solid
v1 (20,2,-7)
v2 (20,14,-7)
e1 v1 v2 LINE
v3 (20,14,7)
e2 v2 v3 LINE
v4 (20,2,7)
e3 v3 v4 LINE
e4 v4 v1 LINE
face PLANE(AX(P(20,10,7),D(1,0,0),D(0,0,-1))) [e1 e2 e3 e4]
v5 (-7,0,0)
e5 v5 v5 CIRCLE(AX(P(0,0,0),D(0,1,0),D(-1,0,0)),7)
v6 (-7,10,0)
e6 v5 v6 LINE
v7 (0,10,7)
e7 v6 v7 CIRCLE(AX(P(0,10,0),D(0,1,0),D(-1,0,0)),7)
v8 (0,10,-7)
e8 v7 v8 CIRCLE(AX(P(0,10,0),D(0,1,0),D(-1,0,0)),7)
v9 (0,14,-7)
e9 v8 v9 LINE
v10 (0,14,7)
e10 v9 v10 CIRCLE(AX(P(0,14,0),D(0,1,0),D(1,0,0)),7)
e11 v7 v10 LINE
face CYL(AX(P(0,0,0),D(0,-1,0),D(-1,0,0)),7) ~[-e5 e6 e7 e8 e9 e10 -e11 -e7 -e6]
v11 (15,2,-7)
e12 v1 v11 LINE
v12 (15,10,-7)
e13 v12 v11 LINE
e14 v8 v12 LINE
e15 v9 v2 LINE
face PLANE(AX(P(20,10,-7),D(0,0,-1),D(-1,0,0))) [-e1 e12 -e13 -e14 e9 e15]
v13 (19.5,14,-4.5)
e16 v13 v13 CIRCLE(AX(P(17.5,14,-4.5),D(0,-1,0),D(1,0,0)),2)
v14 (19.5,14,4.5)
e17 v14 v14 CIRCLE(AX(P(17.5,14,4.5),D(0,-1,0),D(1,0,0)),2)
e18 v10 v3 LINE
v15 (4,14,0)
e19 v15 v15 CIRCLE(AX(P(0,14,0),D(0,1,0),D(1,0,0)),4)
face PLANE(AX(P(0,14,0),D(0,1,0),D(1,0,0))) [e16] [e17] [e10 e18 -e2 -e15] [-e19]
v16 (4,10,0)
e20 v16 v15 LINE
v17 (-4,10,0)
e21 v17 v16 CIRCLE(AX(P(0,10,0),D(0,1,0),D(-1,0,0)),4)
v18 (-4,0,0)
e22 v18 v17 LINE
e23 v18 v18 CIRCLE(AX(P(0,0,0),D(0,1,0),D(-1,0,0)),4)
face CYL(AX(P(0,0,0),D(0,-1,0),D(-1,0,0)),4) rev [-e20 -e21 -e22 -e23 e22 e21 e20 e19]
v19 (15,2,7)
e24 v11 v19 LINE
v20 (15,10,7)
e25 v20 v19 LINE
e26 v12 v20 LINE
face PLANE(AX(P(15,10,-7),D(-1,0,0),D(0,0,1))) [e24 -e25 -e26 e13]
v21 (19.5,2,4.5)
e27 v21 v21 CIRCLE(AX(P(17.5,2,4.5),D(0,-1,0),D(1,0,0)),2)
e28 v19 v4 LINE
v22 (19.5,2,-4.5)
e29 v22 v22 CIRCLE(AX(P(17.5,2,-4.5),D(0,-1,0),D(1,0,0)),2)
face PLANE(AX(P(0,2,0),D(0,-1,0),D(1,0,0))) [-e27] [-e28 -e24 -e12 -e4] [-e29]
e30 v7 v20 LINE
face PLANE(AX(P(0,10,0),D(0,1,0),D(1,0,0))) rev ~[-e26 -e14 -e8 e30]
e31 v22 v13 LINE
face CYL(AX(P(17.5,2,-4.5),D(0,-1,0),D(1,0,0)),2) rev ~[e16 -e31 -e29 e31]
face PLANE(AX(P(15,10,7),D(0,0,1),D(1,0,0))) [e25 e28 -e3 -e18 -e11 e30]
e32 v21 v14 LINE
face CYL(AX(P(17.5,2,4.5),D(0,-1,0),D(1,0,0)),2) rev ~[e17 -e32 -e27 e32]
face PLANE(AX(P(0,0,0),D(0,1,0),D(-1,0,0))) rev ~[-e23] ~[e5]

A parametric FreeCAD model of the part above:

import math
import FreeCAD as App
import Part
import Sketcher
Q = App.Units.Quantity


def add_polygon(sketch, points):
    """Adds a closed chain of lines whose ends are joined by coincident constraints."""
    first, n = sketch.GeometryCount, len(points)
    for a, b in zip(points, points[1:] + points[:1]):
        sketch.addGeometry(Part.LineSegment(App.Vector(*a, 0), App.Vector(*b, 0)), False)
    for i in range(n):
        sketch.addConstraint(Sketcher.Constraint("Coincident", first + i, 2, first + (i + 1) % n, 1))

doc = App.newDocument("Part")
body = doc.addObject("PartDesign::Body", "Body")

# Sketch on XZ plane
sketch1 = body.newObject("Sketcher::SketchObject", "Sketch")
sketch1.AttachmentSupport = (doc.getObject("XZ_Plane"), [""])
sketch1.MapMode = "FlatFace"
sketch1.addGeometry(Part.Circle(App.Vector(0, 0, 0), App.Vector(0, 0, 1), 7), False)
sketch1.addGeometry(Part.Circle(App.Vector(0, 0, 0), App.Vector(0, 0, 1), 4), False)
sketch1.addConstraint(Sketcher.Constraint("Coincident", 0, 3, -1, 1))
sketch1.addConstraint(Sketcher.Constraint("Coincident", 1, 3, -1, 1))
sketch1.addConstraint(Sketcher.Constraint("Diameter", 0, Q("14 mm")))
sketch1.addConstraint(Sketcher.Constraint("Diameter", 1, Q("8 mm")))
pad1 = body.newObject("PartDesign::Pad", "Pad")
pad1.Profile = sketch1
pad1.Length = 10
pad1.Reversed = True

# Sketch on XZ plane
sketch2 = body.newObject("Sketcher::SketchObject", "Sketch001")
sketch2.AttachmentSupport = (doc.getObject("XZ_Plane"), [""])
sketch2.MapMode = "FlatFace"
sketch2.AttachmentOffset = App.Placement(App.Vector(0, 0, -10), App.Rotation())
sketch2.addGeometry(Part.ArcOfCircle(Part.Circle(App.Vector(0, 0, 0), App.Vector(0, 0, 1), 7), math.radians(90), math.radians(270)), False)
sketch2.addGeometry(Part.LineSegment(App.Vector(0, 7, 0), App.Vector(20, 7, 0)), False)
sketch2.addGeometry(Part.LineSegment(App.Vector(20, 7, 0), App.Vector(20, -7, 0)), False)
sketch2.addGeometry(Part.LineSegment(App.Vector(20, -7, 0), App.Vector(0, -7, 0)), False)
sketch2.addGeometry(Part.Circle(App.Vector(0, 0, 0), App.Vector(0, 0, 1), 4), False)
sketch2.addConstraint(Sketcher.Constraint("Tangent", 0, 1, 1, 1))
sketch2.addConstraint(Sketcher.Constraint("Coincident", 1, 2, 2, 1))
sketch2.addConstraint(Sketcher.Constraint("Coincident", 2, 2, 3, 1))
sketch2.addConstraint(Sketcher.Constraint("Tangent", 3, 2, 0, 2))
sketch2.addConstraint(Sketcher.Constraint("Horizontal", 1))
sketch2.addConstraint(Sketcher.Constraint("Vertical", 2))
sketch2.addConstraint(Sketcher.Constraint("Horizontal", 3))
sketch2.addConstraint(Sketcher.Constraint("Coincident", 0, 3, -1, 1))
sketch2.addConstraint(Sketcher.Constraint("Coincident", 4, 3, -1, 1))
sketch2.addConstraint(Sketcher.Constraint("DistanceX", 1, 1, 1, 2, Q("20 mm")))
sketch2.addConstraint(Sketcher.Constraint("Diameter", 4, Q("8 mm")))
sketch2.addConstraint(Sketcher.Constraint("Radius", 0, Q("7 mm")))
pad2 = body.newObject("PartDesign::Pad", "Pad001")
pad2.Profile = sketch2
pad2.Length = 4
pad2.Reversed = True

# Sketch on XZ plane
sketch3 = body.newObject("Sketcher::SketchObject", "Sketch002")
sketch3.AttachmentSupport = (doc.getObject("XZ_Plane"), [""])
sketch3.MapMode = "FlatFace"
sketch3.AttachmentOffset = App.Placement(App.Vector(0, 0, -10), App.Rotation())
add_polygon(sketch3, [(20, -7), (20, 7), (15, 7), (15, -7)])  # lines 0-3
sketch3.addConstraint(Sketcher.Constraint("Vertical", 0))
sketch3.addConstraint(Sketcher.Constraint("Horizontal", 1))
sketch3.addConstraint(Sketcher.Constraint("Vertical", 2))
sketch3.addConstraint(Sketcher.Constraint("Horizontal", 3))
sketch3.addConstraint(Sketcher.Constraint("DistanceX", 1, 2, 1, 1, Q("5 mm")))
sketch3.addConstraint(Sketcher.Constraint("DistanceY", 0, 1, 0, 2, Q("14 mm")))
sketch3.addConstraint(Sketcher.Constraint("DistanceX", -1, 1, 0, 2, Q("20 mm")))
sketch3.addConstraint(Sketcher.Constraint("DistanceY", -1, 1, 0, 2, Q("7 mm")))
pad3 = body.newObject("PartDesign::Pad", "Pad002")
pad3.Profile = sketch3
pad3.Length = 8

# Sketch on XZ plane
sketch4 = body.newObject("Sketcher::SketchObject", "Sketch003")
sketch4.AttachmentSupport = (doc.getObject("XZ_Plane"), [""])
sketch4.MapMode = "FlatFace"
sketch4.AttachmentOffset = App.Placement(App.Vector(0, 0, -2), App.Rotation())
sketch4.addGeometry(Part.Circle(App.Vector(17.5, -4.5, 0), App.Vector(0, 0, 1), 2), False)
sketch4.addGeometry(Part.Circle(App.Vector(17.5, 4.5, 0), App.Vector(0, 0, 1), 2), False)
sketch4.addConstraint(Sketcher.Constraint("Equal", 0, 1))
sketch4.addConstraint(Sketcher.Constraint("Symmetric", 0, 3, 1, 3, -1))
sketch4.addConstraint(Sketcher.Constraint("Diameter", 0, Q("4 mm")))
sketch4.addConstraint(Sketcher.Constraint("DistanceY", 0, 3, 1, 3, Q("9 mm")))
sketch4.addConstraint(Sketcher.Constraint("DistanceX", -1, 1, 0, 3, Q("17.5 mm")))
pocket1 = body.newObject("PartDesign::Pocket", "Pocket")
pocket1.Profile = sketch4
pocket1.Length = 15

doc.recompute()
